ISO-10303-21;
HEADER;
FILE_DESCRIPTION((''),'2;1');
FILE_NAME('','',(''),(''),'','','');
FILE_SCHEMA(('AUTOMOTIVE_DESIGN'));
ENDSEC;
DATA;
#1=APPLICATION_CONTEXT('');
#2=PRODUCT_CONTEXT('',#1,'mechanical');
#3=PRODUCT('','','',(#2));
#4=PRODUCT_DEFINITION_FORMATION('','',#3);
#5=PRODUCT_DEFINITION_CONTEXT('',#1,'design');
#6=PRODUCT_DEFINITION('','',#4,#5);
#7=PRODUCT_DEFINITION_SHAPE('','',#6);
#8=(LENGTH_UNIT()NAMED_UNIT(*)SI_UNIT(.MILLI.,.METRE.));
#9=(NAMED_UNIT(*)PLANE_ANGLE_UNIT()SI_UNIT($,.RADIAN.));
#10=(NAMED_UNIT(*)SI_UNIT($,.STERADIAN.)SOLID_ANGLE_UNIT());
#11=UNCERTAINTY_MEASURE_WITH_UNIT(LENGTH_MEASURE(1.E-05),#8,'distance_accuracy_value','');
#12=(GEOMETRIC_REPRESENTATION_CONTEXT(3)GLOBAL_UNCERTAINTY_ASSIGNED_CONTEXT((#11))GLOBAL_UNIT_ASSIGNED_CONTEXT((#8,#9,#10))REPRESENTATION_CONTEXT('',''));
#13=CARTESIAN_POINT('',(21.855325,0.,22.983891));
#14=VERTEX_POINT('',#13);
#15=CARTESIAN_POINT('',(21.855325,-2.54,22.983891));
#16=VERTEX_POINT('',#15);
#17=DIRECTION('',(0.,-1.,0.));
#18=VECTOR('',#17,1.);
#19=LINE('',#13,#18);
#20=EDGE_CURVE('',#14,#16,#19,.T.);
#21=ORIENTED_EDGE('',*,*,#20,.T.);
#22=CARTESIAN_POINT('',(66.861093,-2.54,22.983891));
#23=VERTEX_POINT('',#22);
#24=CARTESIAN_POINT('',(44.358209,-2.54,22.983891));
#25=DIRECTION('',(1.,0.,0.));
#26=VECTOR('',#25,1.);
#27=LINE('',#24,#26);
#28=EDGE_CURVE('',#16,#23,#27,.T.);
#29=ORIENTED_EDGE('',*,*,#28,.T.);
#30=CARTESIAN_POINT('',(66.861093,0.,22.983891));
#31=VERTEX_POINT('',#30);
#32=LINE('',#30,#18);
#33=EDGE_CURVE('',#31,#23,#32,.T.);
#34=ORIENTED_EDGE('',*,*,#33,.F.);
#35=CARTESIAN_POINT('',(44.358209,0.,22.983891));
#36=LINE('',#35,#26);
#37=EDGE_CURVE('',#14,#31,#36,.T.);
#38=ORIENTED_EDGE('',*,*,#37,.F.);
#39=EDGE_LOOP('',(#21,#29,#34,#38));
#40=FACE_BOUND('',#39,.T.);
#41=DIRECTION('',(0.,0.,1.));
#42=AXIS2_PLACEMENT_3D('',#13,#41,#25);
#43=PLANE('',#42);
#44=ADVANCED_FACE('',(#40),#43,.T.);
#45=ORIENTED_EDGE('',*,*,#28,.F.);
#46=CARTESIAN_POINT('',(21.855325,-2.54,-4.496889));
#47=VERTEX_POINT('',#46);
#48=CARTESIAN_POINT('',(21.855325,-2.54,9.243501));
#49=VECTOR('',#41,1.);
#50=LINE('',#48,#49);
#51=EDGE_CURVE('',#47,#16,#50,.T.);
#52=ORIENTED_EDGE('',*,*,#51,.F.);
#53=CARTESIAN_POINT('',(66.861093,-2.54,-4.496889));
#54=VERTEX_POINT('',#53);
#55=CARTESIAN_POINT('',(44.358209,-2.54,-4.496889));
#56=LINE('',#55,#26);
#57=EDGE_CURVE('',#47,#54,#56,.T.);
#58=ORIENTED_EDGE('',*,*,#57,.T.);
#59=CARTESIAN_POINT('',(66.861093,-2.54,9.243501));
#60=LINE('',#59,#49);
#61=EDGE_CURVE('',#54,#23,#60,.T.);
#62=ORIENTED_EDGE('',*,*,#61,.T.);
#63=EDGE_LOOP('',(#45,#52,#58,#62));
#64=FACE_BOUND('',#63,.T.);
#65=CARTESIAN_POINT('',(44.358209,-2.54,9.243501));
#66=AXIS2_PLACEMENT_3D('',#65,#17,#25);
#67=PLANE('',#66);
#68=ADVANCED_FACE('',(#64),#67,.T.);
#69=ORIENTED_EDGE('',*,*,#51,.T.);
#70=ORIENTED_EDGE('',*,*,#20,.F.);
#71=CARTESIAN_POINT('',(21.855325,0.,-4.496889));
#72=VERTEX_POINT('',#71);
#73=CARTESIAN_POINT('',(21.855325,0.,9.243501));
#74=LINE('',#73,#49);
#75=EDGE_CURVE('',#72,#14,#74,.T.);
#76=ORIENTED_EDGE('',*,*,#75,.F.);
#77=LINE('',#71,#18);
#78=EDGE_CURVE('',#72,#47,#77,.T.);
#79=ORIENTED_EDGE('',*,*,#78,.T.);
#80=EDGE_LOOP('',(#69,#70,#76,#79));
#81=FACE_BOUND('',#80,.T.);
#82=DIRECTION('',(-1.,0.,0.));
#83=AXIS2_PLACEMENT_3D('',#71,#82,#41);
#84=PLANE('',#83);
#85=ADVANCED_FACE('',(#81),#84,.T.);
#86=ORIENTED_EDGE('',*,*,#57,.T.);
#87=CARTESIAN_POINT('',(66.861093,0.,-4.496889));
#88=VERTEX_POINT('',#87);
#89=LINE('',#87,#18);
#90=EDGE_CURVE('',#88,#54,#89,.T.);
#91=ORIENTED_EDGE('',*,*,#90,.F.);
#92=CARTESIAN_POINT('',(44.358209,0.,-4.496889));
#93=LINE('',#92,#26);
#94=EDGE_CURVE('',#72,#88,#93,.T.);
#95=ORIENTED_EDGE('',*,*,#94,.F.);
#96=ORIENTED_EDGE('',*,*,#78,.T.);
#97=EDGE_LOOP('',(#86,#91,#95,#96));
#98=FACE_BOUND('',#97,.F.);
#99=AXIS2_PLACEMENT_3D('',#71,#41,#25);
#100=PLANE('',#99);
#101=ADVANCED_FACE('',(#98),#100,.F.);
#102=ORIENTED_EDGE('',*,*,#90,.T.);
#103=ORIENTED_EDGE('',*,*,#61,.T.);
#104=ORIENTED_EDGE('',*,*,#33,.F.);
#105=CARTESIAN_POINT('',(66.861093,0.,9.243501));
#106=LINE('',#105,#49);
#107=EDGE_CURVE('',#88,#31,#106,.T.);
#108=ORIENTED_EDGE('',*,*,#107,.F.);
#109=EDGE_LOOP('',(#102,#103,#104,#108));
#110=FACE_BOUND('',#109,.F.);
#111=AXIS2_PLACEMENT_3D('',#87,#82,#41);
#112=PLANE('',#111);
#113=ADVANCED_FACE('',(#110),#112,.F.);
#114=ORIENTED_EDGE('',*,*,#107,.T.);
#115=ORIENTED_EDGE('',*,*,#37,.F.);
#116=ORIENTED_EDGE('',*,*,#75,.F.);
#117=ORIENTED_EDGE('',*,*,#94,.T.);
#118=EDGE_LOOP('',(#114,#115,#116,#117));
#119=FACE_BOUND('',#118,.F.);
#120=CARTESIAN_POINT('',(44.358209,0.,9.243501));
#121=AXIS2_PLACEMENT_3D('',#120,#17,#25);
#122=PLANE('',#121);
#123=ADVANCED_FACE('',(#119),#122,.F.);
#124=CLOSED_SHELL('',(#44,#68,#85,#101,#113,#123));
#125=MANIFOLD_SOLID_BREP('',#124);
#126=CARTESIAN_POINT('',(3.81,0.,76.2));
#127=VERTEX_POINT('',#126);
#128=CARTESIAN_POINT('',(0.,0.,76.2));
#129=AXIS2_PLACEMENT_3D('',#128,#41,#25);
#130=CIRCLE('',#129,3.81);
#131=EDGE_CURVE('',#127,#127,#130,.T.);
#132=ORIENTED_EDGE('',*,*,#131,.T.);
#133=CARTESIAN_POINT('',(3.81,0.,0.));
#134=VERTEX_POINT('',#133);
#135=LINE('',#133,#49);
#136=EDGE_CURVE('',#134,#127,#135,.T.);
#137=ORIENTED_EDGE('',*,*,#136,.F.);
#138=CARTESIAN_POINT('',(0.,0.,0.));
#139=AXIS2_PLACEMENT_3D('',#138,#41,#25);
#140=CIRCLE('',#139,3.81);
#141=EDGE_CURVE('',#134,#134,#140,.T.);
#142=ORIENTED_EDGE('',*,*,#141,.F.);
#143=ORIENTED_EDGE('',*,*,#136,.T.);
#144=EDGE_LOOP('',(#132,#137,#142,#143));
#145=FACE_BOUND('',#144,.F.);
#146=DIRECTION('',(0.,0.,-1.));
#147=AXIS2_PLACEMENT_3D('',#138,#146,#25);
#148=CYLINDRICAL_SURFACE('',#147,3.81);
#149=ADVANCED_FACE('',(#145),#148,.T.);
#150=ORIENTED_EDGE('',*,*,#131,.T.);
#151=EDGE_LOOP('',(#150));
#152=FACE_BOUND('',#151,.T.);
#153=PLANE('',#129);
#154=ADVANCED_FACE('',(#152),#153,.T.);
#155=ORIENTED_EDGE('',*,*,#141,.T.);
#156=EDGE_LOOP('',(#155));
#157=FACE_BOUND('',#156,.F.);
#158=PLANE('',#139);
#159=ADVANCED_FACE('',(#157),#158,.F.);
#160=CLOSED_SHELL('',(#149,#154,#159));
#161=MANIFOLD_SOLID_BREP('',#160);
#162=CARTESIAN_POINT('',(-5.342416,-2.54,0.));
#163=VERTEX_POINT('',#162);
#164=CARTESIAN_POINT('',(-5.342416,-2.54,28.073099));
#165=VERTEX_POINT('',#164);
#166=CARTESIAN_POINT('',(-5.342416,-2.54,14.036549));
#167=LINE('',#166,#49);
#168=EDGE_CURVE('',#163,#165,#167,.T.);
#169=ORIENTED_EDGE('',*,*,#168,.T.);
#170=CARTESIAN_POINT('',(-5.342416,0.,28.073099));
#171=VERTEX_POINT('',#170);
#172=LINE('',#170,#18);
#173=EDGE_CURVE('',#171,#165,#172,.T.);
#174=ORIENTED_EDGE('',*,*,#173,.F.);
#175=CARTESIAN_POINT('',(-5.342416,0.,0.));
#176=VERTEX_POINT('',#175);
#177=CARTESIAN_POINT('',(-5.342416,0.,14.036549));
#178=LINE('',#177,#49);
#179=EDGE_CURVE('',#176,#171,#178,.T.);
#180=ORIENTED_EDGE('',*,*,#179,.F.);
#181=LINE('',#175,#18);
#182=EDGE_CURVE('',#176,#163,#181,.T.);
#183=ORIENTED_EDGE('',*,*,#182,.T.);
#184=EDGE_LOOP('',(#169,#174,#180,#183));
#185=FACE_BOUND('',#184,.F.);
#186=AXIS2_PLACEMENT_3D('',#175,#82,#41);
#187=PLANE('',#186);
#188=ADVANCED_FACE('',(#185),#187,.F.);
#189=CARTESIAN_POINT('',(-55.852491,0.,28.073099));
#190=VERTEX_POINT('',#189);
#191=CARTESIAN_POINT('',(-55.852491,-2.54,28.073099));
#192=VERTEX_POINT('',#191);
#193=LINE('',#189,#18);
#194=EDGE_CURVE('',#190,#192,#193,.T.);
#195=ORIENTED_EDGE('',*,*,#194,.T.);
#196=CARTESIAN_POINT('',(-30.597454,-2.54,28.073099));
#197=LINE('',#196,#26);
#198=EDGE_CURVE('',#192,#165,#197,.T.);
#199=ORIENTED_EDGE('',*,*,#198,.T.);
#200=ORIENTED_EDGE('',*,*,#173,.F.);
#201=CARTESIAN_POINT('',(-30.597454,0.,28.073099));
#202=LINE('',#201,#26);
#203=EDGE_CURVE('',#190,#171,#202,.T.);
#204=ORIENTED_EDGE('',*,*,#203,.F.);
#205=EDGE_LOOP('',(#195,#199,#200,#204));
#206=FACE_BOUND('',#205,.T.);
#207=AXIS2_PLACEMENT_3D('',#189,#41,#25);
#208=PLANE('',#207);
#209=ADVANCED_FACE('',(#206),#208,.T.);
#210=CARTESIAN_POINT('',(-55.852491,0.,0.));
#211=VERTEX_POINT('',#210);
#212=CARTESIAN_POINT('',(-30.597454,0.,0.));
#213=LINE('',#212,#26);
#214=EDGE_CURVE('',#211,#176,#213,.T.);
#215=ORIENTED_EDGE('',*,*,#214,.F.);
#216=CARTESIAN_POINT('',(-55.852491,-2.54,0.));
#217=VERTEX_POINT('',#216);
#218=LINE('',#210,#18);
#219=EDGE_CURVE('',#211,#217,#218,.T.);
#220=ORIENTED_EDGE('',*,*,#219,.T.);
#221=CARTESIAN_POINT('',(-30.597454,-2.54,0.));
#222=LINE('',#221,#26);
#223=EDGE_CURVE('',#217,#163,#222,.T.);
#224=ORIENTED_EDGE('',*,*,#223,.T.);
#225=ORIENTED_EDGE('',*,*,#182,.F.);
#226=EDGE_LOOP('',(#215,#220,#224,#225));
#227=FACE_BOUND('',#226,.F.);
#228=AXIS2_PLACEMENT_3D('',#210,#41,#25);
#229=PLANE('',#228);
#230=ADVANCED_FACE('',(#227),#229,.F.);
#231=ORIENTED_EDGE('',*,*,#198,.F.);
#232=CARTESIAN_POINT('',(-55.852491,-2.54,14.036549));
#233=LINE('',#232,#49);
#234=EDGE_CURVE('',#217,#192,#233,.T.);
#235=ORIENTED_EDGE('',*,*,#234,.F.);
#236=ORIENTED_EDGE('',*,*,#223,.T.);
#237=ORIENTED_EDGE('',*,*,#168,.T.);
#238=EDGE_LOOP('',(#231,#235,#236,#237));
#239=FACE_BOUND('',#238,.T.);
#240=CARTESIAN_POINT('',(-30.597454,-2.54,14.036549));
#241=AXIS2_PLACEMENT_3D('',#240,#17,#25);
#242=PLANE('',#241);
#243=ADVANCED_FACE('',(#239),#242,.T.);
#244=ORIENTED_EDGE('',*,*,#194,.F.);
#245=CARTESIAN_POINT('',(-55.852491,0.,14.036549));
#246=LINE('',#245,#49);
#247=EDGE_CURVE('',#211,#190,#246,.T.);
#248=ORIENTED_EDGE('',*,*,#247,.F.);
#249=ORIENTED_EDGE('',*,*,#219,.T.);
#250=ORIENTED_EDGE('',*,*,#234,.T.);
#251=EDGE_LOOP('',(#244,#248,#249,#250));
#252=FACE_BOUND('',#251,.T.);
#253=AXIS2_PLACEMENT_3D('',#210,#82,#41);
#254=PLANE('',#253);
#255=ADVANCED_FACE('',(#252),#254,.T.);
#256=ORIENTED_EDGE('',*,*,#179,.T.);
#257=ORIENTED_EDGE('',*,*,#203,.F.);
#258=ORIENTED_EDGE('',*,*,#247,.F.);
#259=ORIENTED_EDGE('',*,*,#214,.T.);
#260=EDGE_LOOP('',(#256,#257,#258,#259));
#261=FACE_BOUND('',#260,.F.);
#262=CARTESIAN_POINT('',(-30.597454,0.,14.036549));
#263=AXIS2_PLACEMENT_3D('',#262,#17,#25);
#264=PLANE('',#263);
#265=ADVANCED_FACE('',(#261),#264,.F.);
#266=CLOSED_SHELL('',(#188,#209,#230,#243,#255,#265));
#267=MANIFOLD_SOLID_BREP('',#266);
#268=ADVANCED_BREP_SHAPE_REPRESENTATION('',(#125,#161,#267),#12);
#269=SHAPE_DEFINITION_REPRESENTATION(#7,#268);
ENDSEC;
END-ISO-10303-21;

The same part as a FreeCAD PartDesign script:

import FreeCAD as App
import Part
import Sketcher
Q = App.Units.Quantity


def add_polygon(sketch, points):
    """Adds a closed chain of lines whose ends are joined by coincident constraints."""
    first, n = sketch.GeometryCount, len(points)
    for a, b in zip(points, points[1:] + points[:1]):
        sketch.addGeometry(Part.LineSegment(App.Vector(*a, 0), App.Vector(*b, 0)), False)
    for i in range(n):
        sketch.addConstraint(Sketcher.Constraint("Coincident", first + i, 2, first + (i + 1) % n, 1))

doc = App.newDocument("Part")
body = doc.addObject("PartDesign::Body", "Body")

# Sketch on XZ plane
sketch1 = body.newObject("Sketcher::SketchObject", "Sketch")
sketch1.AttachmentSupport = (doc.getObject("XZ_Plane"), [""])
sketch1.MapMode = "FlatFace"
add_polygon(sketch1, [(-56, 28), (-56, 0), (-5, 0), (-5, 28)])  # lines 0-3
sketch1.addConstraint([
    Sketcher.Constraint("Vertical", 0),
    Sketcher.Constraint("Horizontal", 1),
    Sketcher.Constraint("Vertical", 2),
    Sketcher.Constraint("Horizontal", 3),
    Sketcher.Constraint("PointOnObject", 0, 2, -1),
    Sketcher.Constraint("DistanceY", 0, 2, 0, 1, Q("28.073099 mm")),
    Sketcher.Constraint("DistanceX", 1, 1, 1, 2, Q("50.510075 mm")),
    Sketcher.Constraint("DistanceX", 0, 2, -1, 1, Q("55.852491 mm")),
])
pad1 = body.newObject("PartDesign::Pad", "Pad")
pad1.Profile = sketch1
pad1.Length = Q("0.1 in")
body2 = doc.addObject("PartDesign::Body", "Body001")

# Sketch on XZ plane
sketch2 = body2.newObject("Sketcher::SketchObject", "Sketch001")
sketch2.AttachmentSupport = (doc.getObject("XZ_Plane001"), [""])
sketch2.MapMode = "FlatFace"
add_polygon(sketch2, [(22, 23), (22, -4), (67, -4), (67, 23)])  # lines 0-3
sketch2.addConstraint([
    Sketcher.Constraint("Vertical", 0),
    Sketcher.Constraint("Horizontal", 1),
    Sketcher.Constraint("Vertical", 2),
    Sketcher.Constraint("Horizontal", 3),
    Sketcher.Constraint("DistanceY", 0, 2, 0, 1, Q("27.480781 mm")),
    Sketcher.Constraint("DistanceX", 1, 1, 1, 2, Q("45.005768 mm")),
    Sketcher.Constraint("DistanceY", 0, 2, -1, 1, Q("4.496889 mm")),
    Sketcher.Constraint("DistanceX", -1, 1, 0, 2, Q("21.855325 mm")),
])
pad2 = body2.newObject("PartDesign::Pad", "Pad001")
pad2.Profile = sketch2
pad2.Length = Q("0.1 in")
body3 = doc.addObject("PartDesign::Body", "Body002")

# Sketch on XY plane
sketch3 = body3.newObject("Sketcher::SketchObject", "Sketch002")
sketch3.AttachmentSupport = (doc.getObject("XY_Plane002"), [""])
sketch3.MapMode = "FlatFace"
sketch3.addGeometry(Part.Circle(App.Vector(0, 0, 0), App.Vector(0, 0, 1), 3.8), False)
sketch3.addConstraint([
    Sketcher.Constraint("Coincident", 0, 3, -1, 1),
    Sketcher.Constraint("Diameter", 0, Q("0.3 in")),
])
pad3 = body3.newObject("PartDesign::Pad", "Pad002")
pad3.Profile = sketch3
pad3.Length = Q("3 in")

doc.recompute()
